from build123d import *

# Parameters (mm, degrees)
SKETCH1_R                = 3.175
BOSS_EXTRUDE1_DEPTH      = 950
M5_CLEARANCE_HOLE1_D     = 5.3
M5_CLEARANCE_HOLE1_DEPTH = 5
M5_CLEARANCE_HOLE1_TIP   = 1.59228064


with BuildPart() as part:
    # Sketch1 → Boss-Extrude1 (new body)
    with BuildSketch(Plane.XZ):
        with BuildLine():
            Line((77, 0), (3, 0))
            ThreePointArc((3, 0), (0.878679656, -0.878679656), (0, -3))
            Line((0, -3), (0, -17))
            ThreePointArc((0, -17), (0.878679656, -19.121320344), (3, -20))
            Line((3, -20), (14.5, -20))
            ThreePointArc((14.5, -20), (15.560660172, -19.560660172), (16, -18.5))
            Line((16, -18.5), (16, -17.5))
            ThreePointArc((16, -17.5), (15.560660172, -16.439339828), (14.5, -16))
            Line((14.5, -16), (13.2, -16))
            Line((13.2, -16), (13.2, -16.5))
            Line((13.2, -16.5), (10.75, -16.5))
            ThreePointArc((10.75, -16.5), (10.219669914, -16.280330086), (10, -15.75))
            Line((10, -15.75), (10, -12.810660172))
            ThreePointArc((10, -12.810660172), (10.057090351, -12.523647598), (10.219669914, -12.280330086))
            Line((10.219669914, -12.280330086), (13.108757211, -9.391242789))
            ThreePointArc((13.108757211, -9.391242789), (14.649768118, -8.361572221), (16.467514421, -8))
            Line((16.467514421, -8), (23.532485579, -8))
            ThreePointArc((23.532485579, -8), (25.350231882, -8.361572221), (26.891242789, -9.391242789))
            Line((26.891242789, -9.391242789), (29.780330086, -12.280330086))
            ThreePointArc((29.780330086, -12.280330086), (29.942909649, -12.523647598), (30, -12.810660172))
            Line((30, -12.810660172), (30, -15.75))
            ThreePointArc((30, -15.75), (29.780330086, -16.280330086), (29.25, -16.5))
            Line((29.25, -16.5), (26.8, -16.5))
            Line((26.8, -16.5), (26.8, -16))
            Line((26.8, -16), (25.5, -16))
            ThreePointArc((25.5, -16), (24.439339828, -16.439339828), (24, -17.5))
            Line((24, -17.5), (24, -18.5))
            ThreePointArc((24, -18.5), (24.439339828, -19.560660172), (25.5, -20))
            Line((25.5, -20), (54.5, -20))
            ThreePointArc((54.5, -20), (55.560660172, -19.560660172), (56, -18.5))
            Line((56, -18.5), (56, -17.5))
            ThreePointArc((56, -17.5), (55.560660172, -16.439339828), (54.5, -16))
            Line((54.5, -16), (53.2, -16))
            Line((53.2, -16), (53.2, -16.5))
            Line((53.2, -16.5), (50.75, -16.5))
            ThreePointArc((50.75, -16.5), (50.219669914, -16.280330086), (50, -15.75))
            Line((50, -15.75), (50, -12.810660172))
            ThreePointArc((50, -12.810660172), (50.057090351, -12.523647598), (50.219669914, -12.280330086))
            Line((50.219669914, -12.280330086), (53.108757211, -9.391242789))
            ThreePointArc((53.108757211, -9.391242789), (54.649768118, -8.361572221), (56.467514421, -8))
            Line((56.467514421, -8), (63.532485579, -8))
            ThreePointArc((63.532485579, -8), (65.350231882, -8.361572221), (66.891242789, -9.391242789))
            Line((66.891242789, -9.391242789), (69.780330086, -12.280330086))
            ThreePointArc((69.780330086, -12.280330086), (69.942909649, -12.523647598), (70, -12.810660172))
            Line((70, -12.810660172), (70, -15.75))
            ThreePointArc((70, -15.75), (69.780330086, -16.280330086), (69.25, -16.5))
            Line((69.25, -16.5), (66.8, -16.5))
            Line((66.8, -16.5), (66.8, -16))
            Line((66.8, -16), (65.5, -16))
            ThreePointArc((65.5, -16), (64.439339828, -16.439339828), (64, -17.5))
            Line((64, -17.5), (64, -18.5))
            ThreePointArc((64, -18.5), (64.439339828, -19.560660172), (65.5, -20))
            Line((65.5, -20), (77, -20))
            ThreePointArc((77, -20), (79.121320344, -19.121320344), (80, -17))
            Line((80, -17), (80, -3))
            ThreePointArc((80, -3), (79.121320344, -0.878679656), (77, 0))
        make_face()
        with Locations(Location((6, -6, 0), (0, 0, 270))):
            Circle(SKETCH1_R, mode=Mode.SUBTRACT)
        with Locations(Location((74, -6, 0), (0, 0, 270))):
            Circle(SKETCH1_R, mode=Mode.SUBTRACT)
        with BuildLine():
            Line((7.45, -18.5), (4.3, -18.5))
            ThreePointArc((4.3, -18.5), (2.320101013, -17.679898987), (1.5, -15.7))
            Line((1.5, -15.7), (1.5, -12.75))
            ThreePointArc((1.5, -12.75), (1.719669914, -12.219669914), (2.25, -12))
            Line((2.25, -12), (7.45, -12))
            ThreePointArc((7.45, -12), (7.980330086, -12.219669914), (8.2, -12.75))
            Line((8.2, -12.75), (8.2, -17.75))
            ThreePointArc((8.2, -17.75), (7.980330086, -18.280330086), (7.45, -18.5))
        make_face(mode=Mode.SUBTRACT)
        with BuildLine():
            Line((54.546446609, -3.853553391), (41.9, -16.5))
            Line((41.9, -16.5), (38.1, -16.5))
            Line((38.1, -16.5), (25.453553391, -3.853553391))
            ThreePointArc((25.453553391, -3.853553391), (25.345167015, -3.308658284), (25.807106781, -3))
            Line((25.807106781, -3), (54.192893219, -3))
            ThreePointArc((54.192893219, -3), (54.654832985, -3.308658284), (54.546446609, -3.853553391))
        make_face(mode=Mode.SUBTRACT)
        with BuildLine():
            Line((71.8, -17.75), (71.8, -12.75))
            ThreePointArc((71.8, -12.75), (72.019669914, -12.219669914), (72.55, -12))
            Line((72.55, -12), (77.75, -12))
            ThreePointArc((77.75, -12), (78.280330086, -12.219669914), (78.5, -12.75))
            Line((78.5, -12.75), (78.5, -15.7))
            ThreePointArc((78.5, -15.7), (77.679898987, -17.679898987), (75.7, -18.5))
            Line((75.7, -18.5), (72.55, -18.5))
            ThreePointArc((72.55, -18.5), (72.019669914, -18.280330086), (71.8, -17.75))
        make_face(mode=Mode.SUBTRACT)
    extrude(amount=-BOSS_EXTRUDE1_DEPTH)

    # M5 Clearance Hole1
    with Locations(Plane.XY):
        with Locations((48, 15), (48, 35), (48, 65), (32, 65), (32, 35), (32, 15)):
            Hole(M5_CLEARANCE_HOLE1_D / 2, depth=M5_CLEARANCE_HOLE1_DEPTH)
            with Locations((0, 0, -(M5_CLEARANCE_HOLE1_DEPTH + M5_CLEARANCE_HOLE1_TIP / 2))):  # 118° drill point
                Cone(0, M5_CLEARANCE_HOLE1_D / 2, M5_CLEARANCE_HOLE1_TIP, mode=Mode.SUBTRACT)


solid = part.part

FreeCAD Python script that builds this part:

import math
import FreeCAD as App
import Part
import Sketcher

V = App.Vector
Q = App.Units.Quantity

doc = App.newDocument("Part")
body = doc.addObject("PartDesign::Body", "Body")

sketch1 = doc.addObject("Sketcher::SketchObject", "Sketch")
body.addObject(sketch1)
sketch1.AttachmentSupport = (doc.XZ_Plane, [""])
sketch1.MapMode = "FlatFace"
sketch1.addGeometry([
    Part.LineSegment(V(77, 0, 0), V(3, 0, 0)),
    Part.ArcOfCircle(Part.Circle(V(3, -3, 0), V(0, 0, 1), 3), math.radians(90), math.radians(180)),
    Part.LineSegment(V(0, -3, 0), V(0, -17, 0)),
    Part.ArcOfCircle(Part.Circle(V(3, -17, 0), V(0, 0, 1), 3), math.radians(180), math.radians(270)),
    Part.LineSegment(V(3, -20, 0), V(14.5, -20, 0)),
    Part.ArcOfCircle(Part.Circle(V(14.5, -18.5, 0), V(0, 0, 1), 1.5), math.radians(-90), math.radians(0)),
    Part.LineSegment(V(16, -18.5, 0), V(16, -17.5, 0)),
    Part.ArcOfCircle(Part.Circle(V(14.5, -17.5, 0), V(0, 0, 1), 1.5), math.radians(0), math.radians(90)),
    Part.LineSegment(V(14.5, -16, 0), V(13.2, -16, 0)),
    Part.LineSegment(V(13.2, -16, 0), V(13.2, -16.5, 0)),
    Part.LineSegment(V(13.2, -16.5, 0), V(10.8, -16.5, 0)),
    Part.ArcOfCircle(Part.Circle(V(10.8, -15.8, 0), V(0, 0, 1), 0.8), math.radians(180), math.radians(270)),
    Part.LineSegment(V(10, -15.8, 0), V(10, -12.8, 0)),
    Part.ArcOfCircle(Part.Circle(V(10.8, -12.8, 0), V(0, 0, 1), 0.8), math.radians(135), math.radians(180)),
    Part.LineSegment(V(10.2, -12.3, 0), V(13.1, -9.4, 0)),
    Part.ArcOfCircle(Part.Circle(V(16.5, -12.8, 0), V(0, 0, 1), 4.8), math.radians(90), math.radians(135)),
    Part.LineSegment(V(16.5, -8, 0), V(23.5, -8, 0)),
    Part.ArcOfCircle(Part.Circle(V(23.5, -12.8, 0), V(0, 0, 1), 4.8), math.radians(45), math.radians(90)),
    Part.LineSegment(V(26.9, -9.4, 0), V(29.8, -12.3, 0)),
    Part.ArcOfCircle(Part.Circle(V(29.2, -12.8, 0), V(0, 0, 1), 0.8), math.radians(0), math.radians(45)),
    Part.LineSegment(V(30, -12.8, 0), V(30, -15.8, 0)),
    Part.ArcOfCircle(Part.Circle(V(29.2, -15.8, 0), V(0, 0, 1), 0.8), math.radians(-90), math.radians(0)),
    Part.LineSegment(V(29.2, -16.5, 0), V(26.8, -16.5, 0)),
    Part.LineSegment(V(26.8, -16.5, 0), V(26.8, -16, 0)),
    Part.LineSegment(V(26.8, -16, 0), V(25.5, -16, 0)),
    Part.ArcOfCircle(Part.Circle(V(25.5, -17.5, 0), V(0, 0, 1), 1.5), math.radians(90), math.radians(180)),
    Part.LineSegment(V(24, -17.5, 0), V(24, -18.5, 0)),
    Part.ArcOfCircle(Part.Circle(V(25.5, -18.5, 0), V(0, 0, 1), 1.5), math.radians(180), math.radians(270)),
    Part.LineSegment(V(25.5, -20, 0), V(54.5, -20, 0)),
    Part.ArcOfCircle(Part.Circle(V(54.5, -18.5, 0), V(0, 0, 1), 1.5), math.radians(-90), math.radians(0)),
    Part.LineSegment(V(56, -18.5, 0), V(56, -17.5, 0)),
    Part.ArcOfCircle(Part.Circle(V(54.5, -17.5, 0), V(0, 0, 1), 1.5), math.radians(0), math.radians(90)),
    Part.LineSegment(V(54.5, -16, 0), V(53.2, -16, 0)),
    Part.LineSegment(V(53.2, -16, 0), V(53.2, -16.5, 0)),
    Part.LineSegment(V(53.2, -16.5, 0), V(50.8, -16.5, 0)),
    Part.ArcOfCircle(Part.Circle(V(50.8, -15.8, 0), V(0, 0, 1), 0.8), math.radians(180), math.radians(270)),
    Part.LineSegment(V(50, -15.8, 0), V(50, -12.8, 0)),
    Part.ArcOfCircle(Part.Circle(V(50.8, -12.8, 0), V(0, 0, 1), 0.8), math.radians(135), math.radians(180)),
    Part.LineSegment(V(50.2, -12.3, 0), V(53.1, -9.4, 0)),
    Part.ArcOfCircle(Part.Circle(V(56.5, -12.8, 0), V(0, 0, 1), 4.8), math.radians(90), math.radians(135)),
    Part.LineSegment(V(56.5, -8, 0), V(63.5, -8, 0)),
    Part.ArcOfCircle(Part.Circle(V(63.5, -12.8, 0), V(0, 0, 1), 4.8), math.radians(45), math.radians(90)),
    Part.LineSegment(V(66.9, -9.4, 0), V(69.8, -12.3, 0)),
    Part.ArcOfCircle(Part.Circle(V(69.2, -12.8, 0), V(0, 0, 1), 0.8), math.radians(0), math.radians(45)),
    Part.LineSegment(V(70, -12.8, 0), V(70, -15.8, 0)),
    Part.ArcOfCircle(Part.Circle(V(69.2, -15.8, 0), V(0, 0, 1), 0.8), math.radians(-90), math.radians(0)),
    Part.LineSegment(V(69.2, -16.5, 0), V(66.8, -16.5, 0)),
    Part.LineSegment(V(66.8, -16.5, 0), V(66.8, -16, 0)),
    Part.LineSegment(V(66.8, -16, 0), V(65.5, -16, 0)),
    Part.ArcOfCircle(Part.Circle(V(65.5, -17.5, 0), V(0, 0, 1), 1.5), math.radians(90), math.radians(180)),
    Part.LineSegment(V(64, -17.5, 0), V(64, -18.5, 0)),
    Part.ArcOfCircle(Part.Circle(V(65.5, -18.5, 0), V(0, 0, 1), 1.5), math.radians(180), math.radians(270)),
    Part.LineSegment(V(65.5, -20, 0), V(77, -20, 0)),
    Part.ArcOfCircle(Part.Circle(V(77, -17, 0), V(0, 0, 1), 3), math.radians(-90), math.radians(0)),
    Part.LineSegment(V(80, -17, 0), V(80, -3, 0)),
    Part.ArcOfCircle(Part.Circle(V(77, -3, 0), V(0, 0, 1), 3), math.radians(0), math.radians(90)),
    Part.ArcOfCircle(Part.Circle(V(7.5, -17.8, 0), V(0, 0, 1), 0.8), math.radians(-90), math.radians(0)),
    Part.LineSegment(V(7.5, -18.5, 0), V(4.3, -18.5, 0)),
    Part.ArcOfCircle(Part.Circle(V(4.3, -15.7, 0), V(0, 0, 1), 2.8), math.radians(-180), math.radians(-90)),
    Part.LineSegment(V(1.5, -15.7, 0), V(1.5, -12.8, 0)),
    Part.ArcOfCircle(Part.Circle(V(2.2, -12.8, 0), V(0, 0, 1), 0.8), math.radians(90), math.radians(180)),
    Part.LineSegment(V(2.2, -12, 0), V(7.5, -12, 0)),
    Part.ArcOfCircle(Part.Circle(V(7.5, -12.8, 0), V(0, 0, 1), 0.8), math.radians(0), math.radians(90)),
    Part.LineSegment(V(8.2, -12.8, 0), V(8.2, -17.8, 0)),
    Part.ArcOfCircle(Part.Circle(V(72.5, -17.8, 0), V(0, 0, 1), 0.8), math.radians(180), math.radians(270)),
    Part.LineSegment(V(71.8, -17.8, 0), V(71.8, -12.8, 0)),
    Part.ArcOfCircle(Part.Circle(V(72.5, -12.8, 0), V(0, 0, 1), 0.8), math.radians(90), math.radians(180)),
    Part.LineSegment(V(72.5, -12, 0), V(77.8, -12, 0)),
    Part.ArcOfCircle(Part.Circle(V(77.8, -12.8, 0), V(0, 0, 1), 0.8), math.radians(0), math.radians(90)),
    Part.LineSegment(V(78.5, -12.8, 0), V(78.5, -15.7, 0)),
    Part.ArcOfCircle(Part.Circle(V(75.7, -15.7, 0), V(0, 0, 1), 2.8), math.radians(-90), math.radians(0)),
    Part.LineSegment(V(75.7, -18.5, 0), V(72.5, -18.5, 0)),
    Part.Circle(V(6, -6, 0), V(0, 0, 1), 3.2),
    Part.ArcOfCircle(Part.Circle(V(54.2, -3.5, 0), V(0, 0, 1), 0.5), math.radians(-45), math.radians(90)),
    Part.LineSegment(V(54.5, -3.9, 0), V(41.9, -16.5, 0)),
    Part.LineSegment(V(41.9, -16.5, 0), V(38.1, -16.5, 0)),
    Part.LineSegment(V(38.1, -16.5, 0), V(25.5, -3.9, 0)),
    Part.ArcOfCircle(Part.Circle(V(25.8, -3.5, 0), V(0, 0, 1), 0.5), math.radians(90), math.radians(225)),
    Part.LineSegment(V(25.8, -3, 0), V(54.2, -3, 0)),
    Part.Circle(V(74, -6, 0), V(0, 0, 1), 3.2),
], False)
sketch1.addConstraint([
    Sketcher.Constraint("Tangent", 0, 2, 1, 1),
    Sketcher.Constraint("Tangent", 1, 2, 2, 1),
    Sketcher.Constraint("Tangent", 2, 2, 3, 1),
    Sketcher.Constraint("Tangent", 3, 2, 4, 1),
    Sketcher.Constraint("Tangent", 4, 2, 5, 1),
    Sketcher.Constraint("Tangent", 5, 2, 6, 1),
    Sketcher.Constraint("Tangent", 6, 2, 7, 1),
    Sketcher.Constraint("Tangent", 7, 2, 8, 1),
    Sketcher.Constraint("Coincident", 8, 2, 9, 1),
    Sketcher.Constraint("Coincident", 9, 2, 10, 1),
    Sketcher.Constraint("Tangent", 10, 2, 11, 2),
    Sketcher.Constraint("Tangent", 11, 1, 12, 1),
    Sketcher.Constraint("Tangent", 12, 2, 13, 2),
    Sketcher.Constraint("Tangent", 13, 1, 14, 1),
    Sketcher.Constraint("Tangent", 14, 2, 15, 2),
    Sketcher.Constraint("Tangent", 15, 1, 16, 1),
    Sketcher.Constraint("Tangent", 16, 2, 17, 2),
    Sketcher.Constraint("Tangent", 17, 1, 18, 1),
    Sketcher.Constraint("Tangent", 18, 2, 19, 2),
    Sketcher.Constraint("Tangent", 19, 1, 20, 1),
    Sketcher.Constraint("Tangent", 20, 2, 21, 2),
    Sketcher.Constraint("Tangent", 21, 1, 22, 1),
    Sketcher.Constraint("Coincident", 22, 2, 23, 1),
    Sketcher.Constraint("Coincident", 23, 2, 24, 1),
    Sketcher.Constraint("Tangent", 24, 2, 25, 1),
    Sketcher.Constraint("Tangent", 25, 2, 26, 1),
    Sketcher.Constraint("Tangent", 26, 2, 27, 1),
    Sketcher.Constraint("Tangent", 27, 2, 28, 1),
    Sketcher.Constraint("Tangent", 28, 2, 29, 1),
    Sketcher.Constraint("Tangent", 29, 2, 30, 1),
    Sketcher.Constraint("Tangent", 30, 2, 31, 1),
    Sketcher.Constraint("Tangent", 31, 2, 32, 1),
    Sketcher.Constraint("Coincident", 32, 2, 33, 1),
    Sketcher.Constraint("Coincident", 33, 2, 34, 1),
    Sketcher.Constraint("Tangent", 34, 2, 35, 2),
    Sketcher.Constraint("Tangent", 35, 1, 36, 1),
    Sketcher.Constraint("Tangent", 36, 2, 37, 2),
    Sketcher.Constraint("Tangent", 37, 1, 38, 1),
    Sketcher.Constraint("Tangent", 38, 2, 39, 2),
    Sketcher.Constraint("Tangent", 39, 1, 40, 1),
    Sketcher.Constraint("Tangent", 40, 2, 41, 2),
    Sketcher.Constraint("Tangent", 41, 1, 42, 1),
    Sketcher.Constraint("Tangent", 42, 2, 43, 2),
    Sketcher.Constraint("Tangent", 43, 1, 44, 1),
    Sketcher.Constraint("Tangent", 44, 2, 45, 2),
    Sketcher.Constraint("Tangent", 45, 1, 46, 1),
    Sketcher.Constraint("Coincident", 46, 2, 47, 1),
    Sketcher.Constraint("Coincident", 47, 2, 48, 1),
    Sketcher.Constraint("Tangent", 48, 2, 49, 1),
    Sketcher.Constraint("Tangent", 49, 2, 50, 1),
    Sketcher.Constraint("Tangent", 50, 2, 51, 1),
    Sketcher.Constraint("Tangent", 51, 2, 52, 1),
    Sketcher.Constraint("Tangent", 52, 2, 53, 1),
    Sketcher.Constraint("Tangent", 53, 2, 54, 1),
    Sketcher.Constraint("Tangent", 54, 2, 55, 1),
    Sketcher.Constraint("Tangent", 55, 2, 0, 1),
    Sketcher.Constraint("Tangent", 56, 1, 57, 1),
    Sketcher.Constraint("Tangent", 57, 2, 58, 2),
    Sketcher.Constraint("Tangent", 58, 1, 59, 1),
    Sketcher.Constraint("Tangent", 59, 2, 60, 2),
    Sketcher.Constraint("Tangent", 60, 1, 61, 1),
    Sketcher.Constraint("Tangent", 61, 2, 62, 2),
    Sketcher.Constraint("Tangent", 62, 1, 63, 1),
    Sketcher.Constraint("Tangent", 63, 2, 56, 2),
    Sketcher.Constraint("Tangent", 64, 1, 65, 1),
    Sketcher.Constraint("Tangent", 65, 2, 66, 2),
    Sketcher.Constraint("Tangent", 66, 1, 67, 1),
    Sketcher.Constraint("Tangent", 67, 2, 68, 2),
    Sketcher.Constraint("Tangent", 68, 1, 69, 1),
    Sketcher.Constraint("Tangent", 69, 2, 70, 2),
    Sketcher.Constraint("Tangent", 70, 1, 71, 1),
    Sketcher.Constraint("Tangent", 71, 2, 64, 2),
    Sketcher.Constraint("Tangent", 73, 1, 74, 1),
    Sketcher.Constraint("Coincident", 74, 2, 75, 1),
    Sketcher.Constraint("Coincident", 75, 2, 76, 1),
    Sketcher.Constraint("Tangent", 76, 2, 77, 2),
    Sketcher.Constraint("Tangent", 77, 1, 78, 1),
    Sketcher.Constraint("Tangent", 78, 2, 73, 2),
    Sketcher.Constraint("Horizontal", 0),
    Sketcher.Constraint("Vertical", 2),
    Sketcher.Constraint("Horizontal", 4),
    Sketcher.Constraint("Vertical", 6),
    Sketcher.Constraint("Horizontal", 8),
    Sketcher.Constraint("Vertical", 9),
    Sketcher.Constraint("Horizontal", 10),
    Sketcher.Constraint("Vertical", 12),
    Sketcher.Constraint("Horizontal", 16),
    Sketcher.Constraint("Vertical", 20),
    Sketcher.Constraint("Horizontal", 22),
    Sketcher.Constraint("Vertical", 23),
    Sketcher.Constraint("Horizontal", 24),
    Sketcher.Constraint("Vertical", 26),
    Sketcher.Constraint("Horizontal", 28),
    Sketcher.Constraint("Vertical", 30),
    Sketcher.Constraint("Horizontal", 32),
    Sketcher.Constraint("Vertical", 33),
    Sketcher.Constraint("Horizontal", 34),
    Sketcher.Constraint("Vertical", 36),
    Sketcher.Constraint("Horizontal", 40),
    Sketcher.Constraint("Vertical", 44),
    Sketcher.Constraint("Horizontal", 46),
    Sketcher.Constraint("Vertical", 47),
    Sketcher.Constraint("Horizontal", 48),
    Sketcher.Constraint("Vertical", 50),
    Sketcher.Constraint("Horizontal", 52),
    Sketcher.Constraint("Vertical", 54),
    Sketcher.Constraint("Horizontal", 57),
    Sketcher.Constraint("Vertical", 59),
    Sketcher.Constraint("Horizontal", 61),
    Sketcher.Constraint("Vertical", 63),
    Sketcher.Constraint("Vertical", 65),
    Sketcher.Constraint("Horizontal", 67),
    Sketcher.Constraint("Vertical", 69),
    Sketcher.Constraint("Horizontal", 71),
    Sketcher.Constraint("Horizontal", 75),
    Sketcher.Constraint("Horizontal", 78),
    Sketcher.Constraint("Equal", 1, 3),
    Sketcher.Constraint("Equal", 5, 7),
    Sketcher.Constraint("Equal", 11, 13),
    Sketcher.Constraint("Equal", 15, 17),
    Sketcher.Constraint("Equal", 13, 19),
    Sketcher.Constraint("Equal", 19, 21),
    Sketcher.Constraint("Equal", 7, 25),
    Sketcher.Constraint("Equal", 25, 27),
    Sketcher.Constraint("Equal", 27, 29),
    Sketcher.Constraint("Equal", 29, 31),
    Sketcher.Constraint("Equal", 21, 35),
    Sketcher.Constraint("Equal", 35, 37),
    Sketcher.Constraint("Equal", 17, 39),
    Sketcher.Constraint("Equal", 39, 41),
    Sketcher.Constraint("Equal", 37, 43),
    Sketcher.Constraint("Equal", 43, 45),
    Sketcher.Constraint("Equal", 31, 49),
    Sketcher.Constraint("Equal", 49, 51),
    Sketcher.Constraint("Equal", 3, 53),
    Sketcher.Constraint("Equal", 53, 55),
    Sketcher.Constraint("Equal", 45, 56),
    Sketcher.Constraint("Equal", 56, 60),
    Sketcher.Constraint("Equal", 60, 62),
    Sketcher.Constraint("Equal", 62, 64),
    Sketcher.Constraint("Equal", 64, 66),
    Sketcher.Constraint("Equal", 66, 68),
    Sketcher.Constraint("Equal", 58, 70),
    Sketcher.Constraint("Equal", 73, 77),
    Sketcher.Constraint("Equal", 72, 79),
    Sketcher.Constraint("PointOnObject", 0, 2, -1),
    Sketcher.Constraint("PointOnObject", 1, 2, -2),
    Sketcher.Constraint("Perpendicular", 14, 18),
    Sketcher.Constraint("Perpendicular", 18, 38),
    Sketcher.Constraint("Perpendicular", 38, 42),
    Sketcher.Constraint("Perpendicular", 42, 74),
    Sketcher.Constraint("Perpendicular", 74, 76),
    Sketcher.Constraint("Horizontal", 13, 3, 19, 3),
    Sketcher.Constraint("Horizontal", 11, 3, 21, 3),
    Sketcher.Constraint("Horizontal", 7, 3, 25, 3),
    Sketcher.Constraint("Horizontal", 5, 3, 27, 3),
    Sketcher.Constraint("Horizontal", 25, 3, 31, 3),
    Sketcher.Constraint("Horizontal", 21, 3, 35, 3),
    Sketcher.Constraint("Horizontal", 19, 3, 37, 3),
    Sketcher.Constraint("Horizontal", 17, 3, 39, 3),
    Sketcher.Constraint("Horizontal", 37, 3, 43, 3),
    Sketcher.Constraint("Horizontal", 35, 3, 45, 3),
    Sketcher.Constraint("Horizontal", 31, 3, 49, 3),
    Sketcher.Constraint("Horizontal", 29, 3, 51, 3),
    Sketcher.Constraint("Horizontal", 41, 3, 60, 3),
    Sketcher.Constraint("Horizontal", 56, 3, 64, 3),
    Sketcher.Constraint("Horizontal", 62, 3, 66, 3),
    Sketcher.Constraint("Horizontal", 72, 3, 79, 3),
    Sketcher.Constraint("Horizontal", 14, 2, 17, 1),
    Sketcher.Constraint("Horizontal", 50, 2, 56, 1),
    Sketcher.Constraint("Horizontal", 46, 2, 74, 2),
    Sketcher.Constraint("Horizontal", 54, 2, 77, 1),
    Sketcher.Constraint("Equal", 10, 22),
    Sketcher.Constraint("Equal", 8, 24),
    Sketcher.Constraint("Equal", 24, 32),
    Sketcher.Constraint("Equal", 22, 34),
    Sketcher.Constraint("Equal", 16, 40),
    Sketcher.Constraint("Equal", 34, 46),
    Sketcher.Constraint("Equal", 32, 48),
    Sketcher.Constraint("Equal", 4, 52),
    Sketcher.Constraint("Equal", 61, 67),
    Sketcher.Constraint("Radius", 1, Q("3 mm")),
    Sketcher.Constraint("Radius", 5, Q("1.5 mm")),
    Sketcher.Constraint("Radius", 58, Q("2.8 mm")),
    Sketcher.Constraint("Radius", 73, Q("0.5 mm")),
    Sketcher.Constraint("Diameter", 72, Q("6.35 mm")),
    Sketcher.Constraint("DistanceX", 0, 2, 0, 1, Q("74 mm")),
    Sketcher.Constraint("DistanceX", 28, 1, 28, 2, Q("29 mm")),
    Sketcher.Constraint("DistanceY", 2, 2, 2, 1, Q("14 mm")),
    Sketcher.Constraint("DistanceY", 6, 1, 6, 2, Q("1 mm")),
    Sketcher.Constraint("DistanceY", 63, 2, 63, 1, Q("5 mm")),
    Sketcher.Constraint("Radius", 11, Q("0.75 mm")),
    Sketcher.Constraint("Radius", 15, Q("4.75 mm")),
    Sketcher.Constraint("DistanceX", 4, 1, 4, 2, Q("11.5 mm")),
    Sketcher.Constraint("DistanceX", 8, 2, 8, 1, Q("1.3 mm")),
    Sketcher.Constraint("DistanceX", 61, 1, 61, 2, Q("5.2 mm")),
    Sketcher.Constraint("DistanceX", 75, 2, 75, 1, Q("3.8 mm")),
    Sketcher.Constraint("DistanceY", 9, 2, 9, 1, Q("0.5 mm")),
    Sketcher.Constraint("DistanceX", -1, 1, 72, 3, Q("6 mm")),
    Sketcher.Constraint("DistanceY", 72, 3, -1, 1, Q("6 mm")),
    Sketcher.Constraint("DistanceX", -1, 1, 79, 3, Q("74 mm")),
    Sketcher.Constraint("DistanceX", -1, 1, 11, 1, Q("10 mm")),
    Sketcher.Constraint("DistanceX", -1, 1, 58, 3, Q("4.3 mm")),
    Sketcher.Constraint("DistanceX", -1, 1, 70, 3, Q("75.7 mm")),
    Sketcher.Constraint("DistanceX", -1, 1, 74, 2, Q("41.9 mm")),
    Sketcher.Constraint("DistanceX", 16, 1, 16, 2, Q("7.064971 mm")),
])
pad1 = doc.addObject("PartDesign::Pad", "Pad")
body.addObject(pad1)
pad1.Profile = sketch1
pad1.Length = 950
pad1.Reversed = True

sketch2 = doc.addObject("Sketcher::SketchObject", "Sketch001")
body.addObject(sketch2)
sketch2.AttachmentSupport = (doc.XY_Plane, [""])
sketch2.MapMode = "FlatFace"
sketch2.addGeometry([
    Part.Circle(V(48, 15, 0), V(0, 0, 1), 2.6),
    Part.Circle(V(48, 35, 0), V(0, 0, 1), 2.6),
    Part.Circle(V(48, 65, 0), V(0, 0, 1), 2.6),
    Part.Circle(V(32, 65, 0), V(0, 0, 1), 2.6),
    Part.Circle(V(32, 35, 0), V(0, 0, 1), 2.6),
    Part.Circle(V(32, 15, 0), V(0, 0, 1), 2.6),
], False)
sketch2.addConstraint([
    Sketcher.Constraint("Equal", 0, 1),
    Sketcher.Constraint("Equal", 1, 2),
    Sketcher.Constraint("Equal", 2, 3),
    Sketcher.Constraint("Equal", 3, 4),
    Sketcher.Constraint("Equal", 4, 5),
    Sketcher.Constraint("Horizontal", 2, 3, 3, 3),
    Sketcher.Constraint("Horizontal", 1, 3, 4, 3),
    Sketcher.Constraint("Horizontal", 0, 3, 5, 3),
    Sketcher.Constraint("Vertical", 0, 3, 1, 3),
    Sketcher.Constraint("Vertical", 1, 3, 2, 3),
    Sketcher.Constraint("Vertical", 3, 3, 4, 3),
    Sketcher.Constraint("Vertical", 4, 3, 5, 3),
    Sketcher.Constraint("Diameter", 0, Q("5.3 mm")),
    Sketcher.Constraint("DistanceX", -1, 1, 0, 3, Q("48 mm")),
    Sketcher.Constraint("DistanceY", -1, 1, 0, 3, Q("15 mm")),
    Sketcher.Constraint("DistanceY", -1, 1, 1, 3, Q("35 mm")),
    Sketcher.Constraint("DistanceY", -1, 1, 2, 3, Q("65 mm")),
    Sketcher.Constraint("DistanceX", -1, 1, 3, 3, Q("32 mm")),
])
doc.recompute()
hole = doc.addObject("PartDesign::Hole", "Hole")
body.addObject(hole)
hole.Profile = sketch2
hole.ThreadType = "None"
hole.Diameter = 5.3
hole.DepthType = "Dimension"
hole.Depth = 5
hole.DrillPoint = "Angled"
hole.DrillPointAngle = 118

doc.recompute()
